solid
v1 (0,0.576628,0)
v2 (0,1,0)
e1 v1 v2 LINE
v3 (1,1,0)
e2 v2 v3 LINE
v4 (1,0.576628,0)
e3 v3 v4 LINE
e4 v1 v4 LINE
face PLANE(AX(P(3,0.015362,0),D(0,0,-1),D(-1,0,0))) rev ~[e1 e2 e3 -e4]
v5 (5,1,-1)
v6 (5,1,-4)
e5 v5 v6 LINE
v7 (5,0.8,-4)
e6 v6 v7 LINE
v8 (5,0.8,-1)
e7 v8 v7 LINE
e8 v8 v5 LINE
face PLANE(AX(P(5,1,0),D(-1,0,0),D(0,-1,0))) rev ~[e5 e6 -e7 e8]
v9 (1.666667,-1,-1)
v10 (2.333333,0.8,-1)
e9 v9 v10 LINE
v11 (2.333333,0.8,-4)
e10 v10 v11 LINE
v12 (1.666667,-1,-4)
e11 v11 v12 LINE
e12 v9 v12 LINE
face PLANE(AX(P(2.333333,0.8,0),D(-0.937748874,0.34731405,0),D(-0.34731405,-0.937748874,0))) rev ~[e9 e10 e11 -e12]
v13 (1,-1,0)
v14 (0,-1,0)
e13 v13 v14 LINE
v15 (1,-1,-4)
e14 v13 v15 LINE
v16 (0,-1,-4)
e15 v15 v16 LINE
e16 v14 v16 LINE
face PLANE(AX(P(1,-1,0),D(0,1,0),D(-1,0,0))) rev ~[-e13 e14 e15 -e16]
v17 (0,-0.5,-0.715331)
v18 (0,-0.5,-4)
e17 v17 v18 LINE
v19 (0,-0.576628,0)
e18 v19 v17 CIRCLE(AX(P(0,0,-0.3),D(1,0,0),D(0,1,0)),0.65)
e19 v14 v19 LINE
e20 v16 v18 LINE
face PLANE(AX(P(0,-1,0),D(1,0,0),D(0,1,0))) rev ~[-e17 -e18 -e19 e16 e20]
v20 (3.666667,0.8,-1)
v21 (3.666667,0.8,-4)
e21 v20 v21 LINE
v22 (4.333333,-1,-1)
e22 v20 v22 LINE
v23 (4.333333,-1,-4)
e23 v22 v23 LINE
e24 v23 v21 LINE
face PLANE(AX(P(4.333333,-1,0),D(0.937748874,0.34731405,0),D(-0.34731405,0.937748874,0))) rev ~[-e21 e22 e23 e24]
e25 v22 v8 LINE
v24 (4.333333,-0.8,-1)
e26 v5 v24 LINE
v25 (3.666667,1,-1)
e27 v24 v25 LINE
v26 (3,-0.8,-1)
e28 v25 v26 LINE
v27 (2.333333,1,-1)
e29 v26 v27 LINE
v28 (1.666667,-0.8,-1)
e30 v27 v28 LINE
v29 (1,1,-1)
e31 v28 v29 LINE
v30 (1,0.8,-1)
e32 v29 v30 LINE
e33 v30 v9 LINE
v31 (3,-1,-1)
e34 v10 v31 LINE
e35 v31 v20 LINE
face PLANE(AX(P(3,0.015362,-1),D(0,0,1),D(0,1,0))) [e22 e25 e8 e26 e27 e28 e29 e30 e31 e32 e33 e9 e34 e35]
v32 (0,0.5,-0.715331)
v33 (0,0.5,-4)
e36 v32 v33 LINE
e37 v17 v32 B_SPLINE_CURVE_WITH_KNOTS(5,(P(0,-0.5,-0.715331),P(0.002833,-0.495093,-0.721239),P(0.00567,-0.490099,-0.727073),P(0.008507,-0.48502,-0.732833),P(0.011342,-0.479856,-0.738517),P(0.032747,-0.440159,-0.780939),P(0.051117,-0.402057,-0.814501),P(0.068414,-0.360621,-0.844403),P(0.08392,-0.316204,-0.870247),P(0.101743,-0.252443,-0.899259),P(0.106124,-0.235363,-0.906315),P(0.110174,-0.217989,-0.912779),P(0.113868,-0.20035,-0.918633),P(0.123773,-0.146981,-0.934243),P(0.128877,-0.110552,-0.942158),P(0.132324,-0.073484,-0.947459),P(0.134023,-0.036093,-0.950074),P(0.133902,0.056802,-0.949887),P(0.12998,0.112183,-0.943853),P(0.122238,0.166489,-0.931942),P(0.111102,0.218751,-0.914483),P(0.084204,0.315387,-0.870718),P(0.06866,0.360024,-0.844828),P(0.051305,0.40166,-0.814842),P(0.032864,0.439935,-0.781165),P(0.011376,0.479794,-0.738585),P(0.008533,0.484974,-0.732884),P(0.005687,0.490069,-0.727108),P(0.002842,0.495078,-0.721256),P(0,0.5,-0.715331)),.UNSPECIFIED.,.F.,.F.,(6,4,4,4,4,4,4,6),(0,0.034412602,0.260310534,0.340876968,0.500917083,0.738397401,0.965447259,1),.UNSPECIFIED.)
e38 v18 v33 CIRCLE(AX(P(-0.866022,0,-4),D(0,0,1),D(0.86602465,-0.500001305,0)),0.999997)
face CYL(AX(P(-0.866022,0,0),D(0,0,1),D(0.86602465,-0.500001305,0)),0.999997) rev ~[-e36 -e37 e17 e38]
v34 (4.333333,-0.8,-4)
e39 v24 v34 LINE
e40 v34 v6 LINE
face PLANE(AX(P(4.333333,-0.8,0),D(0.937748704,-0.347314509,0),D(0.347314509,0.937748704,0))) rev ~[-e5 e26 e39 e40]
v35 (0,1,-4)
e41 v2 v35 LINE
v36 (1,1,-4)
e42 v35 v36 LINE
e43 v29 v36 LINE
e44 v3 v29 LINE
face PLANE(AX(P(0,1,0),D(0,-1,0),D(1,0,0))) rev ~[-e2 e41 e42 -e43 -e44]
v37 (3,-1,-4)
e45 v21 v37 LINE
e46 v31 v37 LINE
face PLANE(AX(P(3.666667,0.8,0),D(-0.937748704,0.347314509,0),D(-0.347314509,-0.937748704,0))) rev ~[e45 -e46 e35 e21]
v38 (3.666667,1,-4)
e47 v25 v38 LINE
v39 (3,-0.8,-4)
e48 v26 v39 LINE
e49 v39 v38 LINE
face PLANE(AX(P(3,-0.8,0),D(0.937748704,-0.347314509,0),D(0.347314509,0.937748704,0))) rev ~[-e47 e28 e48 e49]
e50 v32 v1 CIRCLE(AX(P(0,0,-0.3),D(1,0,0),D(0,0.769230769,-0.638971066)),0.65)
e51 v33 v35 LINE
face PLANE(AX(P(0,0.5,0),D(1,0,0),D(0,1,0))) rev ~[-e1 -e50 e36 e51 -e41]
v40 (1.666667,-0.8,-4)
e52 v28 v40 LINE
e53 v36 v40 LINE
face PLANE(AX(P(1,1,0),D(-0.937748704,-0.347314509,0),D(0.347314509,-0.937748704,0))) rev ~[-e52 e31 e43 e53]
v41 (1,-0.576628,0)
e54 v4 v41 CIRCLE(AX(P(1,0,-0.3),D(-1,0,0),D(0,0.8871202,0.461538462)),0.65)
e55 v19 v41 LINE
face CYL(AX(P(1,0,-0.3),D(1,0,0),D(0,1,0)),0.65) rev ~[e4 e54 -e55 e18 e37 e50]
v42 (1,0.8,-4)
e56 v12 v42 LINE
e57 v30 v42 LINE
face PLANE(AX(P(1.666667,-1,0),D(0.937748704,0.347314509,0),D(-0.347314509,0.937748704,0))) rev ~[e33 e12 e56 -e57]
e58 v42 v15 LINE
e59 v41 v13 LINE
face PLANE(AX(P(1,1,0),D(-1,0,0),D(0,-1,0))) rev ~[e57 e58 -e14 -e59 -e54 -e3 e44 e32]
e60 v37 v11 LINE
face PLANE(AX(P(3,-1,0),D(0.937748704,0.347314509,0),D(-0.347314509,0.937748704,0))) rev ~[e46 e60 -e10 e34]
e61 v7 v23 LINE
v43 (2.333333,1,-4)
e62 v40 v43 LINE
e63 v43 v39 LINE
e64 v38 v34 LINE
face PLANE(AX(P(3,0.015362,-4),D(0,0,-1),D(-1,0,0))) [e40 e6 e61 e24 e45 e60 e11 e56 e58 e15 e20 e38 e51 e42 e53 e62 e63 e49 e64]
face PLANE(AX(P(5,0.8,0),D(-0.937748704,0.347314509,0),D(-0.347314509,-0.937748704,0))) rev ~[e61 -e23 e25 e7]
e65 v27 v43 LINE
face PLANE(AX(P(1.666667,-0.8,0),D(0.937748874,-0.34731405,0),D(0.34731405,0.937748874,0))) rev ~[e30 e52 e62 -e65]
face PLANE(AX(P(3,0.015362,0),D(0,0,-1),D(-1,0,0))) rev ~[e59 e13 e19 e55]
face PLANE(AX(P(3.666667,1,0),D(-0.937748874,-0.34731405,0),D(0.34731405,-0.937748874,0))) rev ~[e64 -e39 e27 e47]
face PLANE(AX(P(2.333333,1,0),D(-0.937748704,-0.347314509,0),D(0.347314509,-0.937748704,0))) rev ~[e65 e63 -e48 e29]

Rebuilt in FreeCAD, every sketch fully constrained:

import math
import FreeCAD as App
import Part
import Sketcher

V = App.Vector


def add_polygon(sketch, points):
    """Adds a closed chain of lines whose ends are joined by coincident constraints."""
    first, n = sketch.GeometryCount, len(points)
    for a, b in zip(points, points[1:] + points[:1]):
        sketch.addGeometry(Part.LineSegment(App.Vector(*a, 0), App.Vector(*b, 0)), False)
    for i in range(n):
        sketch.addConstraint(Sketcher.Constraint("Coincident", first + i, 2, first + (i + 1) % n, 1))

doc = App.newDocument("Part")
params = doc.addObject("Spreadsheet::Sheet", "Params")
for row, (alias, value) in enumerate([
    ("sketch1_width", "1 mm"),
    ("sketch1_height", "2 mm"),
    ("sketch1_height2", "0.5 mm"),
    ("pad1_length", "4 mm"),
    ("sketch2_height", "0.2 mm"),
    ("pad2_length", "4 mm"),
    ("sketch3_height", "0.2 mm"),
    ("pocket1_length", "1 mm"),
    ("sketch4_diameter", "1.3 mm"),
], start=1):
    params.set(f"A{row}", alias)
    params.set(f"B{row}", "=" + value)
    params.setAlias(f"B{row}", alias)

body = doc.addObject("PartDesign::Body", "Body")

sketch1 = body.newObject("Sketcher::SketchObject", "Sketch")
sketch1.AttachmentSupport = (doc.getObject("XY_Plane"), [""])
sketch1.MapMode = "FlatFace"
sketch1.addGeometry(Part.ArcOfCircle(Part.Circle(V(-0.9, 0, 0), V(0, 0, 1), 1), math.radians(-30), math.radians(30)), False)
sketch1.addGeometry(Part.LineSegment(V(0, -0.5, 0), V(0, -1, 0)), False)
sketch1.addGeometry(Part.LineSegment(V(0, -1, 0), V(1, -1, 0)), False)
sketch1.addGeometry(Part.LineSegment(V(1, -1, 0), V(1, 1, 0)), False)
sketch1.addGeometry(Part.LineSegment(V(1, 1, 0), V(0, 1, 0)), False)
sketch1.addGeometry(Part.LineSegment(V(0, 1, 0), V(0, 0.5, 0)), False)
sketch1.addConstraint(Sketcher.Constraint("Coincident", 0, 1, 1, 1))
sketch1.addConstraint(Sketcher.Constraint("Coincident", 1, 2, 2, 1))
sketch1.addConstraint(Sketcher.Constraint("Coincident", 2, 2, 3, 1))
sketch1.addConstraint(Sketcher.Constraint("Coincident", 3, 2, 4, 1))
sketch1.addConstraint(Sketcher.Constraint("Coincident", 4, 2, 5, 1))
sketch1.addConstraint(Sketcher.Constraint("Coincident", 5, 2, 0, 2))
sketch1.addConstraint(Sketcher.Constraint("Vertical", 1))
sketch1.addConstraint(Sketcher.Constraint("Horizontal", 2))
sketch1.addConstraint(Sketcher.Constraint("Vertical", 3))
sketch1.addConstraint(Sketcher.Constraint("Horizontal", 4))
sketch1.addConstraint(Sketcher.Constraint("Vertical", 5))
sketch1.addConstraint(Sketcher.Constraint("Symmetric", 1, 2, 4, 2, -1, 1))
sketch1.addConstraint(Sketcher.Constraint("Symmetric", 0, 1, 5, 2, -1))
sketch1.addConstraint(Sketcher.Constraint("DistanceX", 2, 1, 2, 2, 1.0))
sketch1.addConstraint(Sketcher.Constraint("DistanceY", 3, 1, 3, 2, 2.0))
sketch1.addConstraint(Sketcher.Constraint("DistanceY", 1, 2, 1, 1, 0.5))
sketch1.addConstraint(Sketcher.Constraint("Radius", 0, 0.999997))
sketch1.setExpression("Constraints[13]", "Params.sketch1_width")
sketch1.setExpression("Constraints[14]", "Params.sketch1_height")
sketch1.setExpression("Constraints[15]", "Params.sketch1_height2")
pad1 = body.newObject("PartDesign::Pad", "Pad")
pad1.Profile = sketch1
pad1.setExpression("Length", "Params.pad1_length")
pad1.Reversed = True

sketch2 = body.newObject("Sketcher::SketchObject", "Sketch001")
sketch2.AttachmentSupport = (doc.getObject("XY_Plane"), [""])
sketch2.MapMode = "FlatFace"
add_polygon(sketch2, [(1.67, -0.8), (1, 1), (1, 0.8), (1.67, -1), (2.33, 0.8), (3, -1), (3.67, 0.8), (4.33, -1), (5, 0.8), (5, 1), (4.33, -0.8), (3.67, 1), (3, -0.8), (2.33, 1)])
sketch2.addConstraint(Sketcher.Constraint("Vertical", 1))
sketch2.addConstraint(Sketcher.Constraint("Vertical", 8))
sketch2.addConstraint(Sketcher.Constraint("Parallel", 0, 2))
sketch2.addConstraint(Sketcher.Constraint("Parallel", 2, 4))
sketch2.addConstraint(Sketcher.Constraint("Parallel", 3, 5))
sketch2.addConstraint(Sketcher.Constraint("Parallel", 4, 6))
sketch2.addConstraint(Sketcher.Constraint("Parallel", 5, 7))
sketch2.addConstraint(Sketcher.Constraint("Parallel", 7, 9))
sketch2.addConstraint(Sketcher.Constraint("Parallel", 6, 10))
sketch2.addConstraint(Sketcher.Constraint("Parallel", 9, 11))
sketch2.addConstraint(Sketcher.Constraint("Parallel", 10, 12))
sketch2.addConstraint(Sketcher.Constraint("Parallel", 11, 13))
sketch2.addConstraint(Sketcher.Constraint("Horizontal", 1, 2, 3, 2))
sketch2.addConstraint(Sketcher.Constraint("Horizontal", 2, 2, 4, 2))
sketch2.addConstraint(Sketcher.Constraint("Horizontal", 3, 2, 5, 2))
sketch2.addConstraint(Sketcher.Constraint("Horizontal", 4, 2, 6, 2))
sketch2.addConstraint(Sketcher.Constraint("Horizontal", 5, 2, 7, 2))
sketch2.addConstraint(Sketcher.Constraint("Horizontal", 0, 2, 8, 2))
sketch2.addConstraint(Sketcher.Constraint("Horizontal", 8, 2, 10, 2))
sketch2.addConstraint(Sketcher.Constraint("Horizontal", 9, 2, 11, 2))
sketch2.addConstraint(Sketcher.Constraint("Horizontal", 10, 2, 12, 2))
sketch2.addConstraint(Sketcher.Constraint("Horizontal", 11, 2, 13, 2))
sketch2.addConstraint(Sketcher.Constraint("Equal", 2, 3))
sketch2.addConstraint(Sketcher.Constraint("DistanceY", 1, 2, 1, 1, 0.2))
sketch2.addConstraint(Sketcher.Constraint("DistanceX", -1, 1, 0, 2, 1.0))
sketch2.addConstraint(Sketcher.Constraint("DistanceY", -1, 1, 0, 2, 1.0))
sketch2.addConstraint(Sketcher.Constraint("DistanceY", 2, 2, -1, 1, 1.0))
sketch2.addConstraint(Sketcher.Constraint("DistanceX", -1, 1, 4, 2, 3.0))
sketch2.setExpression("Constraints[37]", "Params.sketch2_height")
pad2 = body.newObject("PartDesign::Pad", "Pad001")
pad2.Profile = sketch2
pad2.setExpression("Length", "Params.pad2_length")
pad2.Reversed = True

sketch3 = body.newObject("Sketcher::SketchObject", "Sketch002")
sketch3.AttachmentSupport = (doc.getObject("XY_Plane"), [""])
sketch3.MapMode = "FlatFace"
add_polygon(sketch3, [(1, 1), (1, 0.8), (1.67, -1), (2.33, 0.8), (3, -1), (3.67, 0.8), (4.33, -1), (5, 0.8), (5, 1), (4.33, -0.8), (3.67, 1), (3, -0.8), (2.33, 1), (1.67, -0.8)])
sketch3.addConstraint(Sketcher.Constraint("Vertical", 0))
sketch3.addConstraint(Sketcher.Constraint("Vertical", 7))
sketch3.addConstraint(Sketcher.Constraint("Parallel", 1, 3))
sketch3.addConstraint(Sketcher.Constraint("Parallel", 2, 4))
sketch3.addConstraint(Sketcher.Constraint("Parallel", 3, 5))
sketch3.addConstraint(Sketcher.Constraint("Parallel", 4, 6))
sketch3.addConstraint(Sketcher.Constraint("Parallel", 6, 8))
sketch3.addConstraint(Sketcher.Constraint("Parallel", 5, 9))
sketch3.addConstraint(Sketcher.Constraint("Parallel", 8, 10))
sketch3.addConstraint(Sketcher.Constraint("Parallel", 9, 11))
sketch3.addConstraint(Sketcher.Constraint("Parallel", 10, 12))
sketch3.addConstraint(Sketcher.Constraint("Parallel", 11, 13))
sketch3.addConstraint(Sketcher.Constraint("Horizontal", 0, 2, 2, 2))
sketch3.addConstraint(Sketcher.Constraint("Horizontal", 1, 2, 3, 2))
sketch3.addConstraint(Sketcher.Constraint("Horizontal", 2, 2, 4, 2))
sketch3.addConstraint(Sketcher.Constraint("Horizontal", 3, 2, 5, 2))
sketch3.addConstraint(Sketcher.Constraint("Horizontal", 4, 2, 6, 2))
sketch3.addConstraint(Sketcher.Constraint("Horizontal", 7, 2, 9, 2))
sketch3.addConstraint(Sketcher.Constraint("Horizontal", 8, 2, 10, 2))
sketch3.addConstraint(Sketcher.Constraint("Horizontal", 9, 2, 11, 2))
sketch3.addConstraint(Sketcher.Constraint("Horizontal", 10, 2, 12, 2))
sketch3.addConstraint(Sketcher.Constraint("Horizontal", 11, 2, 13, 2))
sketch3.addConstraint(Sketcher.Constraint("Equal", 1, 2))
sketch3.addConstraint(Sketcher.Constraint("DistanceY", 0, 2, 0, 1, 0.2))
sketch3.addConstraint(Sketcher.Constraint("DistanceX", -1, 1, 0, 2, 1.0))
sketch3.addConstraint(Sketcher.Constraint("DistanceY", 1, 2, -1, 1, 1.0))
sketch3.addConstraint(Sketcher.Constraint("DistanceX", -1, 1, 3, 2, 3.0))
sketch3.addConstraint(Sketcher.Constraint("DistanceY", -1, 1, 7, 2, 1.0))
sketch3.setExpression("Constraints[37]", "Params.sketch3_height")
pocket1 = body.newObject("PartDesign::Pocket", "Pocket")
pocket1.Profile = sketch3
pocket1.setExpression("Length", "Params.pocket1_length")

sketch4 = body.newObject("Sketcher::SketchObject", "Sketch003")
sketch4.AttachmentSupport = (doc.getObject("YZ_Plane"), [""])
sketch4.MapMode = "FlatFace"
sketch4.AttachmentOffset = App.Placement(V(0, 0, 1), App.Rotation())
sketch4.addGeometry(Part.Circle(V(0, -0.3, 0), V(0, 0, 1), 0.7), False)
sketch4.addConstraint(Sketcher.Constraint("PointOnObject", 0, 3, -2))
sketch4.addConstraint(Sketcher.Constraint("Diameter", 0, 1.3))
sketch4.addConstraint(Sketcher.Constraint("DistanceY", 0, 3, -1, 1, 0.3))
sketch4.setExpression("Constraints[1]", "Params.sketch4_diameter")
pocket2 = body.newObject("PartDesign::Pocket", "Pocket001")
pocket2.Profile = sketch4
pocket2.Type = "ThroughAll"

doc.recompute()
